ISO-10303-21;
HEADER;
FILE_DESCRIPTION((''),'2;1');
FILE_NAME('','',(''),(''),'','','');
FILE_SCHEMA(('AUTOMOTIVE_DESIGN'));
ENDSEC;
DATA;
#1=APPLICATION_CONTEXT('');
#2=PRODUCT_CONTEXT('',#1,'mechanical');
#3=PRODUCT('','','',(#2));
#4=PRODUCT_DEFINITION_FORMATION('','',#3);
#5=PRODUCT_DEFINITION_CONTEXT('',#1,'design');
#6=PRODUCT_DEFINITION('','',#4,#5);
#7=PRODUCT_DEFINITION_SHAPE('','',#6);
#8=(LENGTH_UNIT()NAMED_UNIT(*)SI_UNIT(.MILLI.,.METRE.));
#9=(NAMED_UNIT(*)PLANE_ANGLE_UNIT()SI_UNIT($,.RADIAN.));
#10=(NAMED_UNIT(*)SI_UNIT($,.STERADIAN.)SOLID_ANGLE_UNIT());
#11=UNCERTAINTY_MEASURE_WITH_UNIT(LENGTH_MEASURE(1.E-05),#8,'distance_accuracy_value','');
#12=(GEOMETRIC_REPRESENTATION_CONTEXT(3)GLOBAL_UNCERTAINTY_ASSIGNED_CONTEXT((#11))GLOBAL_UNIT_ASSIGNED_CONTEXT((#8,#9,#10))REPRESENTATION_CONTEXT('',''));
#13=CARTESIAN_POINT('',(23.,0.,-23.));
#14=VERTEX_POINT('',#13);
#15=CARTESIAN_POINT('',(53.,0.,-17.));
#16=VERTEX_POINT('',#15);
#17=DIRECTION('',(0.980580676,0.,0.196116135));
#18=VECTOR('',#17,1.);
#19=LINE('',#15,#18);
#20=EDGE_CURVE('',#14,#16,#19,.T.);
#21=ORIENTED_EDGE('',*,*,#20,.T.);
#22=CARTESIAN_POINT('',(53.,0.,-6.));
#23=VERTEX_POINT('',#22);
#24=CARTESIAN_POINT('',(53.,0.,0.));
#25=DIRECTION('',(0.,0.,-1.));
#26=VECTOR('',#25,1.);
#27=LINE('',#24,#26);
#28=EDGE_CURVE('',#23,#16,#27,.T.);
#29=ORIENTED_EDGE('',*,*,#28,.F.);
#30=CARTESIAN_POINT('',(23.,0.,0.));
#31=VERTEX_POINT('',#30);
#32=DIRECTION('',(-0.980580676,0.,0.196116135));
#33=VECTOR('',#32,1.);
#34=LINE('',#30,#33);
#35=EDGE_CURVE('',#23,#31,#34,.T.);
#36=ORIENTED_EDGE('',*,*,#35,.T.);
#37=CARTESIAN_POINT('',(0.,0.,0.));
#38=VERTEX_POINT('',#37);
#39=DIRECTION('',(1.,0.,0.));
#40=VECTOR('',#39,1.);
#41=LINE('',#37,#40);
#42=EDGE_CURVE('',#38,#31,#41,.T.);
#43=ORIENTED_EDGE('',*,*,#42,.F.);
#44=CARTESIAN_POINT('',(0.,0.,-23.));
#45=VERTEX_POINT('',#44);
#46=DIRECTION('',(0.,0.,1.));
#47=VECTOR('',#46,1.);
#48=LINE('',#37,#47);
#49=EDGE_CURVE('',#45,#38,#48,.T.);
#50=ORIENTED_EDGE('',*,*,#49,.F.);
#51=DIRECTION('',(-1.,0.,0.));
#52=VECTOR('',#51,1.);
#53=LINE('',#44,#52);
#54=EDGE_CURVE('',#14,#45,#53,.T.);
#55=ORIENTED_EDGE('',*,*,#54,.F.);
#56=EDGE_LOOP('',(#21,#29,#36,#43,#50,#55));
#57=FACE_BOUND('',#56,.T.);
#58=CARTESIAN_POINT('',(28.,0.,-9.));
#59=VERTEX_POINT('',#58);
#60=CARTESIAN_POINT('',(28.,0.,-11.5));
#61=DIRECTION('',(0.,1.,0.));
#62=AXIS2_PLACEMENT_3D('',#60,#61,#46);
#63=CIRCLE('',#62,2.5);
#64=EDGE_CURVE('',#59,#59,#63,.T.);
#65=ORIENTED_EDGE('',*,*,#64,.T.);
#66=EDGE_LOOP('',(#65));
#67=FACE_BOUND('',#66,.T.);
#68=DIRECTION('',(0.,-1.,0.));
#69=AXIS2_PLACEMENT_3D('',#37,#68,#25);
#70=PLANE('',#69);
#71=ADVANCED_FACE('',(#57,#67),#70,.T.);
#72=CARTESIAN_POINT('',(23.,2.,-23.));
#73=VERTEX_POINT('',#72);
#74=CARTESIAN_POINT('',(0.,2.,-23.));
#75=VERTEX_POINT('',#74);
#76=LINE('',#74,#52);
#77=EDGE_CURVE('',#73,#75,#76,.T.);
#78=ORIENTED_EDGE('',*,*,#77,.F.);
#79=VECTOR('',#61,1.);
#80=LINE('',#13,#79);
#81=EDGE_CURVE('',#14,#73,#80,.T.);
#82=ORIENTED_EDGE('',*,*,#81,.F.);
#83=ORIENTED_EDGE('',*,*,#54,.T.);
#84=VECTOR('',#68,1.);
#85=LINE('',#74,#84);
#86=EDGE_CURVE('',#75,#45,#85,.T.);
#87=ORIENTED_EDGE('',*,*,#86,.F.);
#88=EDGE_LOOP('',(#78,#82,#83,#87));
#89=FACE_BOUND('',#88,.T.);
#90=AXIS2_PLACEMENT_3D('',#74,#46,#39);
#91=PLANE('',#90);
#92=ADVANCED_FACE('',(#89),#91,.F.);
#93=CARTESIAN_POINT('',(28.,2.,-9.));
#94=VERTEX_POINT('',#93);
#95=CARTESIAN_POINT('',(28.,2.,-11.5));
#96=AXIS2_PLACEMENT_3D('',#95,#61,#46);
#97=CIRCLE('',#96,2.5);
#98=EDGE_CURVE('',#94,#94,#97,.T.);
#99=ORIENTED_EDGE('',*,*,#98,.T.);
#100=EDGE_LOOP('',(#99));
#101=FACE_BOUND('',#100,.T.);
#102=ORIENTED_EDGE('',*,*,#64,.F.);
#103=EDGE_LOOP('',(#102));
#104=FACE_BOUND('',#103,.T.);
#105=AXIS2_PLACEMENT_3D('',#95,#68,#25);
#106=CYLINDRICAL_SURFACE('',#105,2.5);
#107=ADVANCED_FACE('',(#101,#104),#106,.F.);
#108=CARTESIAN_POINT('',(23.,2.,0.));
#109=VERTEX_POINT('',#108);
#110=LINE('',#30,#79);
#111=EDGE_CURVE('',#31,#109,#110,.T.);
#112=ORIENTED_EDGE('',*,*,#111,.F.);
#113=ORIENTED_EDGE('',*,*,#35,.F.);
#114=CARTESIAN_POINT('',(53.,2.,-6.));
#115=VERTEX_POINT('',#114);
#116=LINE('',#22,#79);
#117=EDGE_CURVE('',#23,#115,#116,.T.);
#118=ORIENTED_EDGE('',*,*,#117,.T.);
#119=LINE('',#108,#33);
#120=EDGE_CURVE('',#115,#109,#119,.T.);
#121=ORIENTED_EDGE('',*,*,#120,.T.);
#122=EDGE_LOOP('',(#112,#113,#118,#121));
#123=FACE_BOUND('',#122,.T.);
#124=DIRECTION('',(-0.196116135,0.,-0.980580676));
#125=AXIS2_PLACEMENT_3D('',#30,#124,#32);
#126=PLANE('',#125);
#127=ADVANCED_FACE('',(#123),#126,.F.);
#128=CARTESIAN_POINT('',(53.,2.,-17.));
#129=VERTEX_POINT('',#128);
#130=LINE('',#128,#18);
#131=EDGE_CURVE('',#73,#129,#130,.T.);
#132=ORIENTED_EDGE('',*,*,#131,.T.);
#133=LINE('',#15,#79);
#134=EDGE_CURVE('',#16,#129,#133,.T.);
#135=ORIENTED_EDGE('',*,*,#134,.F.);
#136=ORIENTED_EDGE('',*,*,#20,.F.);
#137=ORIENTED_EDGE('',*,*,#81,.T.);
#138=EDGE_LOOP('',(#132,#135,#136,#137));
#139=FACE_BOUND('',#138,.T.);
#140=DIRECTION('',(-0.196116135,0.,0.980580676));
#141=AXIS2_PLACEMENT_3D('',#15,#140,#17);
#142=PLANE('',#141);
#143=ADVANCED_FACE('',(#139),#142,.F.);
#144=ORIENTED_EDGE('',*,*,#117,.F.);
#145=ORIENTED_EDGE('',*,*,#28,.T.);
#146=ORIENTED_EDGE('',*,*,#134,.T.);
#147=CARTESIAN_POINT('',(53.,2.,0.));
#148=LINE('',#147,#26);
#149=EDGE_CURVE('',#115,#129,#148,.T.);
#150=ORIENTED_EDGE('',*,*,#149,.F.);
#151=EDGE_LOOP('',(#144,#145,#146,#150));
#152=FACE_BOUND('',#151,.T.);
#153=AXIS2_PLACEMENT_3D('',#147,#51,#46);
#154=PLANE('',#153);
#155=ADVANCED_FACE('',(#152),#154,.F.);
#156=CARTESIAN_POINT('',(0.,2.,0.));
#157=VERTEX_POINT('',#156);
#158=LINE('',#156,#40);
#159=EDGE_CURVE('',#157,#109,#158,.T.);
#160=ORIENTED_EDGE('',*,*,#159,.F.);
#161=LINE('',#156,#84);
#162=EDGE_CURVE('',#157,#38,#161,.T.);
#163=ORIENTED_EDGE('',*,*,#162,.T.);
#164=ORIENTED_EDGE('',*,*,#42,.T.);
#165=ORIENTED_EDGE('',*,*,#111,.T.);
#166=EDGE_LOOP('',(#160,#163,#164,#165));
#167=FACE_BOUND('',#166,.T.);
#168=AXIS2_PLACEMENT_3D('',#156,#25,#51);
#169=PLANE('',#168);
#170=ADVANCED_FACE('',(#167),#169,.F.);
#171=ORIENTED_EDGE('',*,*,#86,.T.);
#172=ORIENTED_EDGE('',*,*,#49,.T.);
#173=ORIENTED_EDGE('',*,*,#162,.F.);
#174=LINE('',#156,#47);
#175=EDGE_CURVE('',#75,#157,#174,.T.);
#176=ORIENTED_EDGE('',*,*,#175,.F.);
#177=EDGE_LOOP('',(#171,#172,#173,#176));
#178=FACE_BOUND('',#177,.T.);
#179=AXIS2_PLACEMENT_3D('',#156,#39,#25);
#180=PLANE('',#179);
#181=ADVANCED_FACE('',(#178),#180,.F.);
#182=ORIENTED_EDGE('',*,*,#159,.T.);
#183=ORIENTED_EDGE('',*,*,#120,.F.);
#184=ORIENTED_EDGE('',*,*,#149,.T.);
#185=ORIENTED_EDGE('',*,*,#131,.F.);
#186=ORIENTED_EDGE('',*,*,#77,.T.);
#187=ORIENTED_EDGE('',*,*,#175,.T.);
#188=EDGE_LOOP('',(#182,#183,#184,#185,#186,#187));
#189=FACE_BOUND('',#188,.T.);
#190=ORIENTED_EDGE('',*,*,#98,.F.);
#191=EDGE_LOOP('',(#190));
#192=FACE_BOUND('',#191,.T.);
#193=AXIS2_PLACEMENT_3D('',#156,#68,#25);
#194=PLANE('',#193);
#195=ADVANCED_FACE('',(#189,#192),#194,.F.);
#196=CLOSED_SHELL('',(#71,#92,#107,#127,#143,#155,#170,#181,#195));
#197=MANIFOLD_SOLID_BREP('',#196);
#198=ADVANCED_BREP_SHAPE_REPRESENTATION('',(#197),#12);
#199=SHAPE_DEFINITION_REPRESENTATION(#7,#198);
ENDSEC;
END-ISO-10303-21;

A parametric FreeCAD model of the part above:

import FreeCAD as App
import Part
import Sketcher


def add_polygon(sketch, points):
    """Adds a closed chain of lines whose ends are joined by coincident constraints."""
    first, n = sketch.GeometryCount, len(points)
    for a, b in zip(points, points[1:] + points[:1]):
        sketch.addGeometry(Part.LineSegment(App.Vector(*a, 0), App.Vector(*b, 0)), False)
    for i in range(n):
        sketch.addConstraint(Sketcher.Constraint("Coincident", first + i, 2, first + (i + 1) % n, 1))

doc = App.newDocument("Part")
params = doc.addObject("Spreadsheet::Sheet", "Params")
for row, (alias, value) in enumerate([
    ("sketch1_diameter", "5 mm"),
    ("sketch1_width", "53 mm"),
    ("sketch1_height", "23 mm"),
    ("pad1_length", "2 mm"),
    ("sketch2_width", "30 mm"),
    ("sketch2_height", "6 mm"),
    ("pocket1_length", "2 mm"),
], start=1):
    params.set(f"A{row}", alias)
    params.set(f"B{row}", "=" + value)
    params.setAlias(f"B{row}", alias)

body = doc.addObject("PartDesign::Body", "Body")

# Sketch on XZ plane
sketch1 = doc.addObject("Sketcher::SketchObject", "Sketch")
body.addObject(sketch1)
sketch1.AttachmentSupport = (doc.XZ_Plane, [""])
sketch1.MapMode = "FlatFace"
add_polygon(sketch1, [(0, -23), (0, 0), (53, 0), (53, -23)])  # lines 0-3
sketch1.addGeometry(Part.Circle(App.Vector(28, -11.5, 0), App.Vector(0, 0, 1), 2.5), False)  # 4
sketch1.addConstraint(Sketcher.Constraint("Vertical", 0))
sketch1.addConstraint(Sketcher.Constraint("Horizontal", 1))
sketch1.addConstraint(Sketcher.Constraint("Vertical", 2))
sketch1.addConstraint(Sketcher.Constraint("Horizontal", 3))
sketch1.addConstraint(Sketcher.Constraint("Coincident", 0, 2, -1, 1))
sketch1.addConstraint(Sketcher.Constraint("Diameter", 4, 5.0))
sketch1.addConstraint(Sketcher.Constraint("DistanceX", 1, 1, 1, 2, 53.0))
sketch1.addConstraint(Sketcher.Constraint("DistanceY", 0, 1, 0, 2, 23.0))
sketch1.addConstraint(Sketcher.Constraint("DistanceX", -1, 1, 4, 3, 28.0))
sketch1.addConstraint(Sketcher.Constraint("DistanceY", 4, 3, -1, 1, 11.5))
sketch1.setExpression("Constraints[9]", "Params.sketch1_diameter")
sketch1.setExpression("Constraints[10]", "Params.sketch1_width")
sketch1.setExpression("Constraints[11]", "Params.sketch1_height")
pad1 = doc.addObject("PartDesign::Pad", "Pad")
body.addObject(pad1)
pad1.Profile = sketch1
pad1.setExpression("Length", "Params.pad1_length")
pad1.Reversed = True

# Sketch on XZ plane
sketch2 = doc.addObject("Sketcher::SketchObject", "Sketch001")
body.addObject(sketch2)
sketch2.AttachmentSupport = (doc.XZ_Plane, [""])
sketch2.MapMode = "FlatFace"
sketch2.AttachmentOffset = App.Placement(App.Vector(0, 0, -2), App.Rotation())
add_polygon(sketch2, [(53, -17), (53, -23), (23, -23)])  # lines 0-2
add_polygon(sketch2, [(53, -6), (23, 0), (53, 0)])  # lines 3-5
sketch2.addConstraint(Sketcher.Constraint("Vertical", 0))
sketch2.addConstraint(Sketcher.Constraint("Horizontal", 1))
sketch2.addConstraint(Sketcher.Constraint("Horizontal", 4))
sketch2.addConstraint(Sketcher.Constraint("Vertical", 5))
sketch2.addConstraint(Sketcher.Constraint("PointOnObject", 3, 2, -1))
sketch2.addConstraint(Sketcher.Constraint("Vertical", 1, 2, 3, 2))
sketch2.addConstraint(Sketcher.Constraint("Vertical", 2, 2, 4, 2))
sketch2.addConstraint(Sketcher.Constraint("Equal", 0, 5))
sketch2.addConstraint(Sketcher.Constraint("DistanceX", 1, 2, 1, 1, 30.0))
sketch2.addConstraint(Sketcher.Constraint("DistanceY", 0, 2, 0, 1, 6.0))
sketch2.addConstraint(Sketcher.Constraint("DistanceX", -1, 1, 0, 2, 53.0))
sketch2.addConstraint(Sketcher.Constraint("DistanceY", 0, 2, -1, 1, 23.0))
sketch2.setExpression("Constraints[14]", "Params.sketch2_width")
sketch2.setExpression("Constraints[15]", "Params.sketch2_height")
pocket1 = doc.addObject("PartDesign::Pocket", "Pocket")
body.addObject(pocket1)
pocket1.Profile = sketch2
pocket1.setExpression("Length", "Params.pocket1_length")
pocket1.Reversed = True

doc.recompute()
